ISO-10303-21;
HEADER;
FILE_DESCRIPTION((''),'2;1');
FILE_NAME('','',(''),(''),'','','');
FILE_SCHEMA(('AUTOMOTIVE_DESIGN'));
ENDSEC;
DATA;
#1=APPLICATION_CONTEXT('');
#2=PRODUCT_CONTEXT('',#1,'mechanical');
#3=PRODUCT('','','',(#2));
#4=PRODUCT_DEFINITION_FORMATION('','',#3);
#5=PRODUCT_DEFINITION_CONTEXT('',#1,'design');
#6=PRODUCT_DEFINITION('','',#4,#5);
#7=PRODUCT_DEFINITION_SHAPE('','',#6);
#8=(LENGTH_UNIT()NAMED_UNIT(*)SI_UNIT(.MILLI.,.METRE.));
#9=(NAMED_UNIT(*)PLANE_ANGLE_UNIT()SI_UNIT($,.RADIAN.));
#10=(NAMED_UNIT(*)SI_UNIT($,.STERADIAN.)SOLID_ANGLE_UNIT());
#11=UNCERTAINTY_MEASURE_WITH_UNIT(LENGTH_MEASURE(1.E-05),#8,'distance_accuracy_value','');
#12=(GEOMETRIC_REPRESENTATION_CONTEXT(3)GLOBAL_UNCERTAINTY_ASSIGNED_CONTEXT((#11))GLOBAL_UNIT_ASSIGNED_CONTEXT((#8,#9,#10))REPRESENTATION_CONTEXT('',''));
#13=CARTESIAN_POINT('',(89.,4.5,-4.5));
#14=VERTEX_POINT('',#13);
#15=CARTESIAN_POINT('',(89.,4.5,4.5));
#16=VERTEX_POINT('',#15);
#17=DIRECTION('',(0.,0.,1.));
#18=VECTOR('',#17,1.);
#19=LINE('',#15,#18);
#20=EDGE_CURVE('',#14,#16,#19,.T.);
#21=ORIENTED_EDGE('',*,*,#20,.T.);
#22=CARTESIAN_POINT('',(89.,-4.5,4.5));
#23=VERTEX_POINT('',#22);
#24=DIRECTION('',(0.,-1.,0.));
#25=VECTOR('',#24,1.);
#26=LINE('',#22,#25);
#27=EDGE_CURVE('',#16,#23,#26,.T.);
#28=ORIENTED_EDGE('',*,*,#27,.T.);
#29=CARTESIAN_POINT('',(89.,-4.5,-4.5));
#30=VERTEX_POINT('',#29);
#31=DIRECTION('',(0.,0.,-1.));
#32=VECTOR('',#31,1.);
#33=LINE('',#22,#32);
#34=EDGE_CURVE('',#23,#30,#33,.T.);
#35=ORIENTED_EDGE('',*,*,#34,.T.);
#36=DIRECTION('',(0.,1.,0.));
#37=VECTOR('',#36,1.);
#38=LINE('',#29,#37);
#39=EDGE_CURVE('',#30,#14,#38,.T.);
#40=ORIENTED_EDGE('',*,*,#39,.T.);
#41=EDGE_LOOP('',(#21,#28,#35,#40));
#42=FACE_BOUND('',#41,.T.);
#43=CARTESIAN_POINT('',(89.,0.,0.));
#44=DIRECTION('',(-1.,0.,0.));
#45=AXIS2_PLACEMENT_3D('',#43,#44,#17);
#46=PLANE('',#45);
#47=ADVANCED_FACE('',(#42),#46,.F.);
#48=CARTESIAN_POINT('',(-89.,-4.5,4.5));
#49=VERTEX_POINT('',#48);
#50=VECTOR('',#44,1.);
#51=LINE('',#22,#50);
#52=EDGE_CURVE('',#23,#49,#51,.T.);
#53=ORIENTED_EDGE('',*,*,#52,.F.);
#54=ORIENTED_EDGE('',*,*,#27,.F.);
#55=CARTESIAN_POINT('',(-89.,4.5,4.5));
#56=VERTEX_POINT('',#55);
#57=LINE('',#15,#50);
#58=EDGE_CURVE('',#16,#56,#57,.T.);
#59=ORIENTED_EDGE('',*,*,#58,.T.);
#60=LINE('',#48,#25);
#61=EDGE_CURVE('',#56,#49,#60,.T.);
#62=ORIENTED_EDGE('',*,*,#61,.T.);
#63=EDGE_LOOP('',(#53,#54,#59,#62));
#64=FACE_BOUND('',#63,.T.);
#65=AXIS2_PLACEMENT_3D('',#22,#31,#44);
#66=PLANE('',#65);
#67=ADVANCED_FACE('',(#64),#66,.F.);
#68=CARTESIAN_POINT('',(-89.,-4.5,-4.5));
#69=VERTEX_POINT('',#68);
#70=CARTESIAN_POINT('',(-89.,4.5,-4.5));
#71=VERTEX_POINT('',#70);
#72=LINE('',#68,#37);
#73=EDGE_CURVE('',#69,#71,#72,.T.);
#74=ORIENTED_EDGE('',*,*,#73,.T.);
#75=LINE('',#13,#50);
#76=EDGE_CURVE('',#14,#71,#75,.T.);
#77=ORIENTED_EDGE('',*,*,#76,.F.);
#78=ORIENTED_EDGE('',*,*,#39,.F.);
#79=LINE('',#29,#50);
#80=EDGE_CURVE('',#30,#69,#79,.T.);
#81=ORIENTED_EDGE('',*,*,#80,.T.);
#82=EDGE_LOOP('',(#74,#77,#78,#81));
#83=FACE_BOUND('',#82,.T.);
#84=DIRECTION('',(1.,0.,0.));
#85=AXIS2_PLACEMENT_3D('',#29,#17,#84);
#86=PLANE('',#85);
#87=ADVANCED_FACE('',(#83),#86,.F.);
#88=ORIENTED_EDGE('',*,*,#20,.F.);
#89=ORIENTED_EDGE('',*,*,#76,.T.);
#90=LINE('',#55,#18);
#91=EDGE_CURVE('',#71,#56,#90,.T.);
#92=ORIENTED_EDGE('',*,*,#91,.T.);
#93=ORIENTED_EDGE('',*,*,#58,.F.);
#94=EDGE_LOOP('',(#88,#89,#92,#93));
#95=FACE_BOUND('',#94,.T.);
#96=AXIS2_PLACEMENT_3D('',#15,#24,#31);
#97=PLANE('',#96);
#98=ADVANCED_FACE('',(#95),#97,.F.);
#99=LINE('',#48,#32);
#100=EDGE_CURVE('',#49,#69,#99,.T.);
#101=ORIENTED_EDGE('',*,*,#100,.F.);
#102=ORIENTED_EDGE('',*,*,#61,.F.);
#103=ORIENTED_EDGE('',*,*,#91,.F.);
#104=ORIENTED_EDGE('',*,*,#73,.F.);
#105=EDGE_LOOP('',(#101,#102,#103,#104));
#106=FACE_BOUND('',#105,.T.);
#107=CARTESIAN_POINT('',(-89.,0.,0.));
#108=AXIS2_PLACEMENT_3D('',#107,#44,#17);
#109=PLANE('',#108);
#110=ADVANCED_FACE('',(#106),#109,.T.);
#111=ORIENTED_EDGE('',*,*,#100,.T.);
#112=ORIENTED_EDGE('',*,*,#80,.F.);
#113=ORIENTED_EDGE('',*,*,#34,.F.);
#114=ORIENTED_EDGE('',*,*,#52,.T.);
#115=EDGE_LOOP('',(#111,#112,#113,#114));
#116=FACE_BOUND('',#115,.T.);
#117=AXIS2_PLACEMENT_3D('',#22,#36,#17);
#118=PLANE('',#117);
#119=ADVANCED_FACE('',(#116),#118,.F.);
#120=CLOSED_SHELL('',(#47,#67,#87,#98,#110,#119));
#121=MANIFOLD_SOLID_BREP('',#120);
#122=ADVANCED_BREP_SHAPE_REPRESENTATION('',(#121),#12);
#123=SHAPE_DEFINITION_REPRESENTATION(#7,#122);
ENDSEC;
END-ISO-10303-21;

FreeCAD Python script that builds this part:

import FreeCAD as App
import Part
import Sketcher
from FreeCAD import Vector
Q = App.Units.Quantity


def add_polygon(sketch, points):
    """Adds a closed chain of lines whose ends are joined by coincident constraints."""
    first, n = sketch.GeometryCount, len(points)
    for a, b in zip(points, points[1:] + points[:1]):
        sketch.addGeometry(Part.LineSegment(App.Vector(*a, 0), App.Vector(*b, 0)), False)
    for i in range(n):
        sketch.addConstraint(Sketcher.Constraint("Coincident", first + i, 2, first + (i + 1) % n, 1))

doc = App.newDocument("Part")
body = doc.addObject("PartDesign::Body", "Body")

# Sketch on YZ plane
sketch1 = body.newObject("Sketcher::SketchObject", "Sketch")
sketch1.AttachmentSupport = (doc.getObject("YZ_Plane"), [""])
sketch1.MapMode = "FlatFace"
add_polygon(sketch1, [(4, 4), (-4, 4), (-4, -4), (4, -4)])  # lines 0-3
sketch1.addConstraint([
    Sketcher.Constraint("Horizontal", 0),
    Sketcher.Constraint("Vertical", 1),
    Sketcher.Constraint("Horizontal", 2),
    Sketcher.Constraint("Vertical", 3),
    Sketcher.Constraint("Symmetric", 0, 2, 2, 2, -1, 1),
    Sketcher.Constraint("Equal", 2, 1),
    Sketcher.Constraint("DistanceX", 0, 2, 0, 1, Q("9 mm")),
])
pad1 = body.newObject("PartDesign::Pad", "Pad")
pad1.Profile = sketch1
pad1.Type = "TwoLengths"
pad1.Length = 89
pad1.Length2 = 89

doc.recompute()
